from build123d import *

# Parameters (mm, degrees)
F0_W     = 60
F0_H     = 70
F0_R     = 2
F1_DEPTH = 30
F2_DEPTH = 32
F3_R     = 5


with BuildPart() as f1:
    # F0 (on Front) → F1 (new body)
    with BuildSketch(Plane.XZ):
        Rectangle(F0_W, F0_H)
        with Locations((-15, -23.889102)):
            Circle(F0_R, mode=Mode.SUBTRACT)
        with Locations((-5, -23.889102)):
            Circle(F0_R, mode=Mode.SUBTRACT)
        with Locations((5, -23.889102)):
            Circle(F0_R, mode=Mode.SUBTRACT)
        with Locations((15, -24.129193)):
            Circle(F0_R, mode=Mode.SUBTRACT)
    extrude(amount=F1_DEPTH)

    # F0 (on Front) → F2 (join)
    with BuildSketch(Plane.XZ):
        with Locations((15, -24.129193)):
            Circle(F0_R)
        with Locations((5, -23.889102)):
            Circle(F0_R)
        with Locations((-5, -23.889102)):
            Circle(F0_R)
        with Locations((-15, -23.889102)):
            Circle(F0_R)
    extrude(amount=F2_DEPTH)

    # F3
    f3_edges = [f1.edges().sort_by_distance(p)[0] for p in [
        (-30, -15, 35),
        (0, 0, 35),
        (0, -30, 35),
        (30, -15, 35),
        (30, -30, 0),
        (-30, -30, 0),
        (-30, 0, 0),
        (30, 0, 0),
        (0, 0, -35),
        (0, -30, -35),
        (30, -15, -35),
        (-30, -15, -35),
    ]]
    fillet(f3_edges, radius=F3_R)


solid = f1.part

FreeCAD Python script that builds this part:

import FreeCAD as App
import Part
import Sketcher

V = App.Vector
Q = App.Units.Quantity


def edges_at(feature, points):
    """Names of the edges that pass closest to the given points."""
    edges = feature.Shape.Edges
    near = lambda p: min(range(len(edges)), key=lambda i: edges[i].distToShape(Part.Vertex(*p))[0])
    return sorted({f"Edge{near(p) + 1}" for p in points})


def add_polygon(sketch, points):
    """Adds a closed chain of lines whose ends are joined by coincident constraints."""
    first, n = sketch.GeometryCount, len(points)
    for a, b in zip(points, points[1:] + points[:1]):
        sketch.addGeometry(Part.LineSegment(App.Vector(*a, 0), App.Vector(*b, 0)), False)
    for i in range(n):
        sketch.addConstraint(Sketcher.Constraint("Coincident", first + i, 2, first + (i + 1) % n, 1))

doc = App.newDocument("Part")
body = doc.addObject("PartDesign::Body", "Body")

sketch1 = doc.addObject("Sketcher::SketchObject", "Sketch")
body.addObject(sketch1)
sketch1.AttachmentSupport = (doc.XZ_Plane, [""])
sketch1.MapMode = "FlatFace"
add_polygon(sketch1, [(-30, 35), (-30, -35), (30, -35), (30, 35)])
sketch1.addGeometry(Part.Circle(V(15, -24.1, 0), V(0, 0, 1), 2), False)
sketch1.addGeometry(Part.Circle(V(-15, -23.9, 0), V(0, 0, 1), 2), False)
sketch1.addGeometry(Part.Circle(V(-5, -23.9, 0), V(0, 0, 1), 2), False)
sketch1.addGeometry(Part.Circle(V(5, -23.9, 0), V(0, 0, 1), 2), False)
sketch1.addConstraint([
    Sketcher.Constraint("Vertical", 0),
    Sketcher.Constraint("Horizontal", 1),
    Sketcher.Constraint("Vertical", 2),
    Sketcher.Constraint("Horizontal", 3),
    Sketcher.Constraint("Equal", 4, 5),
    Sketcher.Constraint("Equal", 5, 6),
    Sketcher.Constraint("Equal", 6, 7),
    Sketcher.Constraint("Symmetric", 0, 2, 2, 2, -1, 1),
    Sketcher.Constraint("Symmetric", 6, 3, 7, 3, -2),
    Sketcher.Constraint("Horizontal", 5, 3, 6, 3),
    Sketcher.Constraint("Diameter", 4, Q("4 mm")),
    Sketcher.Constraint("DistanceX", 1, 1, 1, 2, Q("60 mm")),
    Sketcher.Constraint("DistanceY", 0, 2, 0, 1, Q("70 mm")),
    Sketcher.Constraint("DistanceX", -1, 1, 4, 3, Q("15 mm")),
    Sketcher.Constraint("DistanceX", 5, 3, -1, 1, Q("15 mm")),
    Sketcher.Constraint("DistanceX", 6, 3, -1, 1, Q("5 mm")),
    Sketcher.Constraint("DistanceY", 4, 3, 5, 3, Q("0.240091 mm")),
    Sketcher.Constraint("DistanceY", 4, 3, -1, 1, Q("24.129193 mm")),
])
pad1 = doc.addObject("PartDesign::Pad", "Pad")
body.addObject(pad1)
pad1.Profile = sketch1
pad1.Length = 30

sketch2 = doc.addObject("Sketcher::SketchObject", "Sketch001")
body.addObject(sketch2)
sketch2.AttachmentSupport = (doc.XZ_Plane, [""])
sketch2.MapMode = "FlatFace"
sketch2.addGeometry([
    Part.Circle(V(15, -24.1, 0), V(0, 0, 1), 2),
    Part.Circle(V(5, -23.9, 0), V(0, 0, 1), 2),
    Part.Circle(V(-5, -23.9, 0), V(0, 0, 1), 2),
    Part.Circle(V(-15, -23.9, 0), V(0, 0, 1), 2),
], False)
sketch2.addConstraint([
    Sketcher.Constraint("Equal", 0, 1),
    Sketcher.Constraint("Equal", 1, 2),
    Sketcher.Constraint("Equal", 2, 3),
    Sketcher.Constraint("Symmetric", 1, 3, 2, 3, -2),
    Sketcher.Constraint("Horizontal", 2, 3, 3, 3),
    Sketcher.Constraint("Diameter", 0, Q("4 mm")),
    Sketcher.Constraint("DistanceX", -1, 1, 0, 3, Q("15 mm")),
    Sketcher.Constraint("DistanceX", -1, 1, 1, 3, Q("5 mm")),
    Sketcher.Constraint("DistanceX", 3, 3, -1, 1, Q("15 mm")),
    Sketcher.Constraint("DistanceY", 0, 3, 1, 3, Q("0.240091 mm")),
    Sketcher.Constraint("DistanceY", 0, 3, -1, 1, Q("24.129193 mm")),
])
pad2 = doc.addObject("PartDesign::Pad", "Pad001")
body.addObject(pad2)
pad2.Profile = sketch2
pad2.Length = 32
doc.recompute()

fillet = doc.addObject("PartDesign::Fillet", "Fillet")
body.addObject(fillet)
fillet.Base = (pad2, edges_at(pad2, [
    (-30, -15, 35),
    (0, 0, 35),
    (0, -30, 35),
    (30, -15, 35),
    (30, -30, 0),
    (-30, -30, 0),
    (-30, 0, 0),
    (30, 0, 0),
    (0, 0, -35),
    (0, -30, -35),
    (30, -15, -35),
    (-30, -15, -35),
]))
fillet.Radius = 5

doc.recompute()
